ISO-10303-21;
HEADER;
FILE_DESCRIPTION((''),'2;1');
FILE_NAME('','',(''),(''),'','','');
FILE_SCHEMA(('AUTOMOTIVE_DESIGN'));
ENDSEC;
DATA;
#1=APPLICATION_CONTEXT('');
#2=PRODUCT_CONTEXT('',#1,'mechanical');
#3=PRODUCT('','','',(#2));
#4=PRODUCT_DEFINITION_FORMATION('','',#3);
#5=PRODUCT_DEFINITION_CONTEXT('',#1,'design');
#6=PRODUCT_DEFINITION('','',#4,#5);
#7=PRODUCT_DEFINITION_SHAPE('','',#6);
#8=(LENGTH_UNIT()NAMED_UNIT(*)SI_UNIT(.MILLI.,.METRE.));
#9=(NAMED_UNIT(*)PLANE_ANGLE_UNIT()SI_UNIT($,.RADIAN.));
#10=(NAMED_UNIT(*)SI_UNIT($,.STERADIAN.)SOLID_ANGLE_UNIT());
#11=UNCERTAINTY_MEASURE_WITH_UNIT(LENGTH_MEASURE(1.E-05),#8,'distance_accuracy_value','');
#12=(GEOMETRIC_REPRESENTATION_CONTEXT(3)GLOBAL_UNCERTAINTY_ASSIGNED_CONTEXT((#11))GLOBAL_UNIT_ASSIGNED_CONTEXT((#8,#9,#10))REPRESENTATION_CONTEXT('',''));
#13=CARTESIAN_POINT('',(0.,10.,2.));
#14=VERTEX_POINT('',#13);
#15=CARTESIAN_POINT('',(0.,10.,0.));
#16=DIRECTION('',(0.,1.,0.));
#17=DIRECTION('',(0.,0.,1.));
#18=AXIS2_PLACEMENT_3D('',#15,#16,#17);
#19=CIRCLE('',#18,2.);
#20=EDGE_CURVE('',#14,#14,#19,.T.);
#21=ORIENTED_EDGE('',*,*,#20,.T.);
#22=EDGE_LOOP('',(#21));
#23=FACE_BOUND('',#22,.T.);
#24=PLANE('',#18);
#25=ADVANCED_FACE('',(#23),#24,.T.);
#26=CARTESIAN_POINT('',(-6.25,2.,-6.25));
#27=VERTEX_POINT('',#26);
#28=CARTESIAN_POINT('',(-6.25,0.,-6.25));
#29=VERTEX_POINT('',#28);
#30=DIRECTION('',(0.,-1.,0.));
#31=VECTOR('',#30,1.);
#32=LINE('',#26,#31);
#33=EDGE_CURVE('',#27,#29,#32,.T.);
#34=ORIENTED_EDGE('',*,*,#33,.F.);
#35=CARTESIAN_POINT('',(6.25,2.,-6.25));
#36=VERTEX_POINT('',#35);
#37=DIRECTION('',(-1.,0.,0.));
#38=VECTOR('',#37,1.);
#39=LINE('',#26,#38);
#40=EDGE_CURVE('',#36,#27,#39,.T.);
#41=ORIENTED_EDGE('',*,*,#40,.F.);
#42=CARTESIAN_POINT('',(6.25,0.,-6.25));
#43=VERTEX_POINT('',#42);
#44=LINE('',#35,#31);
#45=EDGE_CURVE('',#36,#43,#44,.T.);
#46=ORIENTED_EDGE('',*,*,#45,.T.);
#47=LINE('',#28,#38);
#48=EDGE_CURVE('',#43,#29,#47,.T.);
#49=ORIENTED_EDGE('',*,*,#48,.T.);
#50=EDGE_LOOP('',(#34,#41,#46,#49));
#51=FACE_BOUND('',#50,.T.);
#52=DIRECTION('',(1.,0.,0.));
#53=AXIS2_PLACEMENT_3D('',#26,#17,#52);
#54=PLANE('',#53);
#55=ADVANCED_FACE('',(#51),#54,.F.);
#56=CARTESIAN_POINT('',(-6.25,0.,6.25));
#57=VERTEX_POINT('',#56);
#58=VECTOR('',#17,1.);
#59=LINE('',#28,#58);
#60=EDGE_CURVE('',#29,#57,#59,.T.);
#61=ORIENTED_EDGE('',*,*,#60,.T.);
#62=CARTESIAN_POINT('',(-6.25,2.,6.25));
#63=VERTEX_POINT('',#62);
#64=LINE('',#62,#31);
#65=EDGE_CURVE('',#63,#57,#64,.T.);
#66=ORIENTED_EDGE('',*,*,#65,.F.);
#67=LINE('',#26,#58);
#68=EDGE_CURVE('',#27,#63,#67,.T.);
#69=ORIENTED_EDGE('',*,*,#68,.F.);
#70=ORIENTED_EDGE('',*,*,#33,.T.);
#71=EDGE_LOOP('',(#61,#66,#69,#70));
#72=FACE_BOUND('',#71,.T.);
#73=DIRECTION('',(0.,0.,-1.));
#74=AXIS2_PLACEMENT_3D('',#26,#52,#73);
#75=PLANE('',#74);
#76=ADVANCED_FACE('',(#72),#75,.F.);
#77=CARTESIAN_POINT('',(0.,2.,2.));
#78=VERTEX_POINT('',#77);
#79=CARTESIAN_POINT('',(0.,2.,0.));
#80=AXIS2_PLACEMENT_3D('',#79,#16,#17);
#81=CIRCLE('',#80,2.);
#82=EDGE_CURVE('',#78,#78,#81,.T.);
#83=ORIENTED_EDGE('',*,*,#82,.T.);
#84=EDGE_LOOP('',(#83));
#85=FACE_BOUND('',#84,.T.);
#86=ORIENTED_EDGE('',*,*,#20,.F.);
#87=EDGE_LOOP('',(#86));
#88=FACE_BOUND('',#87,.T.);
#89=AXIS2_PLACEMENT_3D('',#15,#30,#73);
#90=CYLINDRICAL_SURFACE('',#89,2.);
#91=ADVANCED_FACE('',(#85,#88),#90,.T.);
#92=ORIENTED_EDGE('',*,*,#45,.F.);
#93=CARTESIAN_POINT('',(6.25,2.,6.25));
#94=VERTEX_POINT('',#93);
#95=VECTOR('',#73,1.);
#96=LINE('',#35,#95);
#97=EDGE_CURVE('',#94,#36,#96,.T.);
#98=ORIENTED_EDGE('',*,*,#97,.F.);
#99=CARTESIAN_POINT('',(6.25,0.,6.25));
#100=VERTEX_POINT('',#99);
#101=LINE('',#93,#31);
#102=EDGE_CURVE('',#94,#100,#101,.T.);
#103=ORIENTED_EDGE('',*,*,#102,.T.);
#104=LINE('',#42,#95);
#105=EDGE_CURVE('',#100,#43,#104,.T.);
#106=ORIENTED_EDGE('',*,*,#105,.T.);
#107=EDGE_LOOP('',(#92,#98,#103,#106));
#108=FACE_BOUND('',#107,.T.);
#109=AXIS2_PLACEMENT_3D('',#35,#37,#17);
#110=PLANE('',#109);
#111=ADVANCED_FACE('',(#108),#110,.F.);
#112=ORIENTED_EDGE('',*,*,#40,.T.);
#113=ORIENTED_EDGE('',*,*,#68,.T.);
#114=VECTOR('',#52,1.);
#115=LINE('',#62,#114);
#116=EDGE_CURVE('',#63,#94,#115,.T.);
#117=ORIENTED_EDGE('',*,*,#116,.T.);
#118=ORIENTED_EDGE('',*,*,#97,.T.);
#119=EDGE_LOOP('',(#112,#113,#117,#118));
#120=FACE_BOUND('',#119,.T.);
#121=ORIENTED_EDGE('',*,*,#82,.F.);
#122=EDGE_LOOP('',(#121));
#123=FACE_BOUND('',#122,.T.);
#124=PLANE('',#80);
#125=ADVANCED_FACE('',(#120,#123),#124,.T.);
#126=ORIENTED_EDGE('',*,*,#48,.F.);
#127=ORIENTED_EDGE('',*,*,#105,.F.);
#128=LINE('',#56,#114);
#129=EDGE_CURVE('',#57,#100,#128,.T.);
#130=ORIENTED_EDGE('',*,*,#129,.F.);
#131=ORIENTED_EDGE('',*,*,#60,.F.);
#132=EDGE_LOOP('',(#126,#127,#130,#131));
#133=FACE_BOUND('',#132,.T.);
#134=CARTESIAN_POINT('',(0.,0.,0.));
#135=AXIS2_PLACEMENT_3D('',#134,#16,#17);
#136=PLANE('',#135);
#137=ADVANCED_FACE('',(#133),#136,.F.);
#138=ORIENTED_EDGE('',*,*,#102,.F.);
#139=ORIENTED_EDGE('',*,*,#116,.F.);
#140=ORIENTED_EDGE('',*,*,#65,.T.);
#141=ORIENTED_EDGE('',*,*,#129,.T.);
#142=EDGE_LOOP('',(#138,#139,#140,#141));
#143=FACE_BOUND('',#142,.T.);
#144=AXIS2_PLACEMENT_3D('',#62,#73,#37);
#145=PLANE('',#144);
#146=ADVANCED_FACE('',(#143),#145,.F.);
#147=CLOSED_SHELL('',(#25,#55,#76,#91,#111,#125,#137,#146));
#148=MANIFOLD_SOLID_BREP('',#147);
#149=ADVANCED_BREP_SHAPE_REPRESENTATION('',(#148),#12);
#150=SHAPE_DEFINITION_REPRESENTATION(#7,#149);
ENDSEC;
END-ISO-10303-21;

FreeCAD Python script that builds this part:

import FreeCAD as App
import Part
import Sketcher
Q = App.Units.Quantity

doc = App.newDocument("Part")
body = doc.addObject("PartDesign::Body", "Body")

# Sketch on XZ plane
sketch1 = doc.addObject("Sketcher::SketchObject", "Sketch")
body.addObject(sketch1)
sketch1.AttachmentSupport = (doc.XZ_Plane, [""])
sketch1.MapMode = "FlatFace"
sketch1.addGeometry(Part.LineSegment(App.Vector(-6, -6, 0), App.Vector(-6, 6, 0)), False)
sketch1.addGeometry(Part.LineSegment(App.Vector(-6, 6, 0), App.Vector(6, 6, 0)), False)
sketch1.addGeometry(Part.LineSegment(App.Vector(6, 6, 0), App.Vector(6, -6, 0)), False)
sketch1.addGeometry(Part.LineSegment(App.Vector(6, -6, 0), App.Vector(-6, -6, 0)), False)
sketch1.addConstraint(Sketcher.Constraint("Coincident", 0, 2, 1, 1))
sketch1.addConstraint(Sketcher.Constraint("Coincident", 1, 2, 2, 1))
sketch1.addConstraint(Sketcher.Constraint("Coincident", 2, 2, 3, 1))
sketch1.addConstraint(Sketcher.Constraint("Coincident", 3, 2, 0, 1))
sketch1.addConstraint(Sketcher.Constraint("Vertical", 0))
sketch1.addConstraint(Sketcher.Constraint("Horizontal", 1))
sketch1.addConstraint(Sketcher.Constraint("Vertical", 2))
sketch1.addConstraint(Sketcher.Constraint("Horizontal", 3))
sketch1.addConstraint(Sketcher.Constraint("Symmetric", 0, 2, 2, 2, -1, 1))
sketch1.addConstraint(Sketcher.Constraint("Equal", 3, 0))
sketch1.addConstraint(Sketcher.Constraint("DistanceX", 1, 1, 1, 2, Q("12.5 mm")))
pad1 = doc.addObject("PartDesign::Pad", "Pad")
body.addObject(pad1)
pad1.Profile = sketch1
pad1.Length = 2
pad1.Reversed = True

# Sketch on XZ plane
sketch2 = doc.addObject("Sketcher::SketchObject", "Sketch001")
body.addObject(sketch2)
sketch2.AttachmentSupport = (doc.XZ_Plane, [""])
sketch2.MapMode = "FlatFace"
sketch2.AttachmentOffset = App.Placement(App.Vector(0, 0, -2), App.Rotation())
sketch2.addGeometry(Part.Circle(App.Vector(0, 0, 0), App.Vector(0, 0, 1), 2), False)
sketch2.addConstraint(Sketcher.Constraint("Coincident", 0, 3, -1, 1))
sketch2.addConstraint(Sketcher.Constraint("Diameter", 0, Q("4 mm")))
pad2 = doc.addObject("PartDesign::Pad", "Pad001")
body.addObject(pad2)
pad2.Profile = sketch2
pad2.Length = 8
pad2.Reversed = True

doc.recompute()
